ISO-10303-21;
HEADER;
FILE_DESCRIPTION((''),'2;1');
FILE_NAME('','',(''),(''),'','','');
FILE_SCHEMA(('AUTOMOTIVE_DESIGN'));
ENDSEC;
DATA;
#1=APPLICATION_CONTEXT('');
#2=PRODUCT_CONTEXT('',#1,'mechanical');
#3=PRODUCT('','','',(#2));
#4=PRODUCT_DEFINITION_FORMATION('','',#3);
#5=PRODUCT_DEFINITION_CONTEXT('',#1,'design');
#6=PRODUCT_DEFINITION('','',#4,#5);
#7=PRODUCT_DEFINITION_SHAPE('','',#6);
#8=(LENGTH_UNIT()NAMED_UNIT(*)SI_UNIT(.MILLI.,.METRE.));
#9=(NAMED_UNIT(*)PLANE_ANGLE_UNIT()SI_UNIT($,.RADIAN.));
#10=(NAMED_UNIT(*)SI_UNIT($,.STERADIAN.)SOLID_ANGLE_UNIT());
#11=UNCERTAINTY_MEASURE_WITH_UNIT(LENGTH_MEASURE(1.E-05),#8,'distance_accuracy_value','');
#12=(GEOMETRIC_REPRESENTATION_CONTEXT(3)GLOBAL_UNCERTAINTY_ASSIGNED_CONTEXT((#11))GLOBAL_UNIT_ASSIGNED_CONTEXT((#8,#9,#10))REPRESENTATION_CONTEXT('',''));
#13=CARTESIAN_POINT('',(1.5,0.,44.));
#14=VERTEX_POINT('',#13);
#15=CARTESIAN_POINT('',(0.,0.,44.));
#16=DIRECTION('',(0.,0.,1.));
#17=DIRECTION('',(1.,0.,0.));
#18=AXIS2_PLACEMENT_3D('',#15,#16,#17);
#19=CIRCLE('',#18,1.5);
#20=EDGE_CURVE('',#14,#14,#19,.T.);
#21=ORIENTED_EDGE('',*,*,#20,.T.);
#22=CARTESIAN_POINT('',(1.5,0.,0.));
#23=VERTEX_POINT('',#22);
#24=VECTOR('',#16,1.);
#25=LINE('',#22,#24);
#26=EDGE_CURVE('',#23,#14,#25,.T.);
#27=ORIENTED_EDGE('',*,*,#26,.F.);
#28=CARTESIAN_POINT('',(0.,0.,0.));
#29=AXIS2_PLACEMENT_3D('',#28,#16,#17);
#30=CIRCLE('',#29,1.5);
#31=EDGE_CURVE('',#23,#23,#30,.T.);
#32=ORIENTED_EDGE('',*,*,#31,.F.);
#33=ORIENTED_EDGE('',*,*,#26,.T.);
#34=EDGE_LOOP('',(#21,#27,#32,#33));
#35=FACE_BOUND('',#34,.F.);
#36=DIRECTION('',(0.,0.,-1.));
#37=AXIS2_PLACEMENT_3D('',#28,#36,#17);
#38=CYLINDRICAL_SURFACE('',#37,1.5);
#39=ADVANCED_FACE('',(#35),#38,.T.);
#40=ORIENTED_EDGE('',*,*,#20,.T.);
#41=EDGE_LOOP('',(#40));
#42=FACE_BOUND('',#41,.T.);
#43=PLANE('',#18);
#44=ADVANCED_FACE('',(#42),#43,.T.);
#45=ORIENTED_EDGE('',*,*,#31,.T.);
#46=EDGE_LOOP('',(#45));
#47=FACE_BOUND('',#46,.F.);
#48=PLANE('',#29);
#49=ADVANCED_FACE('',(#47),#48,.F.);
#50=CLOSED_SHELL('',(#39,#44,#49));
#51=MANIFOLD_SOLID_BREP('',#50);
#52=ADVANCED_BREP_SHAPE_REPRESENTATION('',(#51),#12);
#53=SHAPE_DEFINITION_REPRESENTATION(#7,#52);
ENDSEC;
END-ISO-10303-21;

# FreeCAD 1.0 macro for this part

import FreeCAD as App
import Part
import Sketcher

doc = App.newDocument("Part")
body = doc.addObject("PartDesign::Body", "Body")

sketch1 = body.newObject("Sketcher::SketchObject", "Sketch")
sketch1.AttachmentSupport = (doc.getObject("XY_Plane"), [""])
sketch1.MapMode = "FlatFace"
sketch1.addGeometry(Part.Circle(App.Vector(0, 0, 0), App.Vector(0, 0, 1), 1.5), False)
sketch1.addConstraint(Sketcher.Constraint("Coincident", 0, 3, -1, 1))
sketch1.addConstraint(Sketcher.Constraint("Diameter", 0, 3.0))
pad1 = body.newObject("PartDesign::Pad", "Pad")
pad1.Profile = sketch1
pad1.Length = 44

doc.recompute()
